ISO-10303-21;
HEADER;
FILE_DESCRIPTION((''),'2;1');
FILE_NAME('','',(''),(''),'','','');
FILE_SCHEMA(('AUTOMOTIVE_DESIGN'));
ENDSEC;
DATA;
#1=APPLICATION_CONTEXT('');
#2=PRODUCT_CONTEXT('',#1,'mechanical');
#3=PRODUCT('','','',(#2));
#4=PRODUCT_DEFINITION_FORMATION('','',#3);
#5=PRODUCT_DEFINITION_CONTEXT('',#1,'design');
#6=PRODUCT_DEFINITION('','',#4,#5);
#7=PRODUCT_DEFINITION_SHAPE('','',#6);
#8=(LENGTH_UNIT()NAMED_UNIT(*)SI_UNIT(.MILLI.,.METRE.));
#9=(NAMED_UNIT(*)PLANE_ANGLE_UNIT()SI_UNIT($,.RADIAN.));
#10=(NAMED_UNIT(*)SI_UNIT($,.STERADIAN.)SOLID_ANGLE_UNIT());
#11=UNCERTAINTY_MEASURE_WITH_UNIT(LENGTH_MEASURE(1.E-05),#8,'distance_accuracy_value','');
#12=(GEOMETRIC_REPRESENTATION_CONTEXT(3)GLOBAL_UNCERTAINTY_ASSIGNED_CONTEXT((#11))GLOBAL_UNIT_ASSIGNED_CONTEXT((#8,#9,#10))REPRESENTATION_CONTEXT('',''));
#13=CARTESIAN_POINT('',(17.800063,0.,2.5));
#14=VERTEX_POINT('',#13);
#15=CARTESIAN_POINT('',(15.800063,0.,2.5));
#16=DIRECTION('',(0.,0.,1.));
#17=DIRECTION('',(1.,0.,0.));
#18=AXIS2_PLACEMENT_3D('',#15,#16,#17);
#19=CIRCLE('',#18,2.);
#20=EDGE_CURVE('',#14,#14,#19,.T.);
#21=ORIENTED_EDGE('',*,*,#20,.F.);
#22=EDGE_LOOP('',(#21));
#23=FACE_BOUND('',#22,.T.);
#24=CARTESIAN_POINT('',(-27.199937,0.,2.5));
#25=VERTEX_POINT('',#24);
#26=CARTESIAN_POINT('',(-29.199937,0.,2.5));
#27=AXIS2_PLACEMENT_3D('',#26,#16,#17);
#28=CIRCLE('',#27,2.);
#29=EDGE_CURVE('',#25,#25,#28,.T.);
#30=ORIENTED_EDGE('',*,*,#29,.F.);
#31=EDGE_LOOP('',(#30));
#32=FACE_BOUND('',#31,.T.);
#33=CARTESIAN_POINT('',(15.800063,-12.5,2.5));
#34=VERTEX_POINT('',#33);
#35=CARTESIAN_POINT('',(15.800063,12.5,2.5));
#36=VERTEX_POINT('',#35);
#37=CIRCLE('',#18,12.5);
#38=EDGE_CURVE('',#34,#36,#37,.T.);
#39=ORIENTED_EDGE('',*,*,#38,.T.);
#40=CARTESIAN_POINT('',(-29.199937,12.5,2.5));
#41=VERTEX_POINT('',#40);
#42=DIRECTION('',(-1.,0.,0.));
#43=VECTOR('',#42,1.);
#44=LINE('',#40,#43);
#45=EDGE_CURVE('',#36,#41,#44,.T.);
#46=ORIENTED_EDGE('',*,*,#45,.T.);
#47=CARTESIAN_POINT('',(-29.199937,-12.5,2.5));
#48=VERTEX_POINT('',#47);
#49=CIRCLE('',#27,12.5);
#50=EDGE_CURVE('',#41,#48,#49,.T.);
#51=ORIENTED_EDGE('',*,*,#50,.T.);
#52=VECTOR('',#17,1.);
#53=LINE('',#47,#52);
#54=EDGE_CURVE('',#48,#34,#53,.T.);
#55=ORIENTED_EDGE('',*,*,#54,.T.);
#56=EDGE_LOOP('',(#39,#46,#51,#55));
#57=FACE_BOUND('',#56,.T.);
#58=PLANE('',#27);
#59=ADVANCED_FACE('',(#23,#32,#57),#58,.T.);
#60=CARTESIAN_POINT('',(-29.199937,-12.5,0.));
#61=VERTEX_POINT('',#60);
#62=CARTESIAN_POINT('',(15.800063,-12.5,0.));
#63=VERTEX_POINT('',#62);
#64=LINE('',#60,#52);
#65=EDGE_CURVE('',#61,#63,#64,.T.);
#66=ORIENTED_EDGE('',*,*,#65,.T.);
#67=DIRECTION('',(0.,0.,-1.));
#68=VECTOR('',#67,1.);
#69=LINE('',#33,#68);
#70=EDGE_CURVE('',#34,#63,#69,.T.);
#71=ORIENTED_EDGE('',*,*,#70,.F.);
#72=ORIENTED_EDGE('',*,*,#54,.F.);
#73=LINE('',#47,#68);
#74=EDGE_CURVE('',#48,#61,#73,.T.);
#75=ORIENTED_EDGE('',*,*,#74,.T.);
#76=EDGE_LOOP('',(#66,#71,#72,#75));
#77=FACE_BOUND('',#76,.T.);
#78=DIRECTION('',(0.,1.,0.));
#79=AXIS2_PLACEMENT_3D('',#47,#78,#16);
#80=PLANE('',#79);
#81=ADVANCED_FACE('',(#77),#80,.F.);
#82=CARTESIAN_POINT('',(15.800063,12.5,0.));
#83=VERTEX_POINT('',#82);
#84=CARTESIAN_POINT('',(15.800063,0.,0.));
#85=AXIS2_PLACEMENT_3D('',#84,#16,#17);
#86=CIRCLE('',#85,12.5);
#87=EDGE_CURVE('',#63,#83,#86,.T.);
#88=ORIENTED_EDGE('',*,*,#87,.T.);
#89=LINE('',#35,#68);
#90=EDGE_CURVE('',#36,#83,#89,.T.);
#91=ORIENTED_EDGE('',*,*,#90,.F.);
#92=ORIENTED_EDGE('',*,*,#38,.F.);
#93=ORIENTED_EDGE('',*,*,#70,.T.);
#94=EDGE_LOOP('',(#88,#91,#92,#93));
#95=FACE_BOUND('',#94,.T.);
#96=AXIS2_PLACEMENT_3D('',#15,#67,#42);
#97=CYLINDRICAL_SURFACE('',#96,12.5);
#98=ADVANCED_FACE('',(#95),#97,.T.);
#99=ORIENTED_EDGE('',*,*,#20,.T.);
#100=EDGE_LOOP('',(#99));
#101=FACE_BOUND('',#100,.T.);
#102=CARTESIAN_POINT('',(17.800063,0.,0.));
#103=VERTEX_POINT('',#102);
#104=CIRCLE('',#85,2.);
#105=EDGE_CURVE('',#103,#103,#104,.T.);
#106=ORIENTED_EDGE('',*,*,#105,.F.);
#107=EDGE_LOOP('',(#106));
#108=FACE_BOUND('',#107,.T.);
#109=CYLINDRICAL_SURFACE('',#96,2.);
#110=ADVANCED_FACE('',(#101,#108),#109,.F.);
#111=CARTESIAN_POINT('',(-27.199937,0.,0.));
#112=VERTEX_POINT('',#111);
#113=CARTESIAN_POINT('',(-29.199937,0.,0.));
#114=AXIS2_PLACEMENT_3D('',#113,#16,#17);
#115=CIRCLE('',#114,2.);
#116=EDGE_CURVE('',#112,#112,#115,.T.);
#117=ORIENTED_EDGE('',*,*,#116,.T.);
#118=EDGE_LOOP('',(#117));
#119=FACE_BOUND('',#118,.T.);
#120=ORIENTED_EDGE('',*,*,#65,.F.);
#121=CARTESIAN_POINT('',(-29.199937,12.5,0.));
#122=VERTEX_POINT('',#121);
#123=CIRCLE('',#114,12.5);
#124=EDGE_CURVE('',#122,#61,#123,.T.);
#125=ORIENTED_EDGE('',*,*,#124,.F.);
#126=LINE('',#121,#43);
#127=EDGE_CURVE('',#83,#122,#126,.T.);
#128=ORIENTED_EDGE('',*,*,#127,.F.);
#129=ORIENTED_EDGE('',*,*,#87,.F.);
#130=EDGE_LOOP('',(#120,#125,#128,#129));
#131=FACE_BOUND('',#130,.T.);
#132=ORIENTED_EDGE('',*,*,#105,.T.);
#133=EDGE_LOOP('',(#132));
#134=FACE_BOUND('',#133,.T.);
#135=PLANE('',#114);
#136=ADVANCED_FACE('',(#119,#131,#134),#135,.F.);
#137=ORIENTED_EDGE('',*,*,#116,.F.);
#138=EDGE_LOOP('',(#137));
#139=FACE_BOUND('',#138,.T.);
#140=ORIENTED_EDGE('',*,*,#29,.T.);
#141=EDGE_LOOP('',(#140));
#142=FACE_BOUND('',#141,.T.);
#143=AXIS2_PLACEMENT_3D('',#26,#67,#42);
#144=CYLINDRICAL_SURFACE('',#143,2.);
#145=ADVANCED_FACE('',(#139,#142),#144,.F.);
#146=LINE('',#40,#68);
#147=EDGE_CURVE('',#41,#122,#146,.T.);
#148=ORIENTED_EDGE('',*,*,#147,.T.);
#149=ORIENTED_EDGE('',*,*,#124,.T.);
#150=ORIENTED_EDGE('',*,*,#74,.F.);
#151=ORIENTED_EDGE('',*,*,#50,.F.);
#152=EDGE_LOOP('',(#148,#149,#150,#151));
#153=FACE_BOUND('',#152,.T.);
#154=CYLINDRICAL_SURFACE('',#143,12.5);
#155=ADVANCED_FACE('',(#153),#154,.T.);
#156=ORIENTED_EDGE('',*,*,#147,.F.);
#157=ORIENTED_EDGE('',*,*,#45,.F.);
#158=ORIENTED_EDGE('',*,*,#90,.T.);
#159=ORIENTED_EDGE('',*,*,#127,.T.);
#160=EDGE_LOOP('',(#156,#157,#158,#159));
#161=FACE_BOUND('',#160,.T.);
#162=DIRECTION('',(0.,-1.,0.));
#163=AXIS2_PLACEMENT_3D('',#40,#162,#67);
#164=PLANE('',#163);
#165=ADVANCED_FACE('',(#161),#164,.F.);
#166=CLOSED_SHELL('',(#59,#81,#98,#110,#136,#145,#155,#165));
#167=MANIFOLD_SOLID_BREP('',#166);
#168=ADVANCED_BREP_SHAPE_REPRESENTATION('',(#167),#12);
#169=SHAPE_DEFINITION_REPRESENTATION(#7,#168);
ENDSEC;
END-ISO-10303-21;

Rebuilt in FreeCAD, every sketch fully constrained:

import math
import FreeCAD as App
import Part
import Sketcher
Q = App.Units.Quantity

doc = App.newDocument("Part")
body = doc.addObject("PartDesign::Body", "Body")

# Sketch on XY plane
sketch1 = doc.addObject("Sketcher::SketchObject", "Sketch")
body.addObject(sketch1)
sketch1.AttachmentSupport = (doc.XY_Plane, [""])
sketch1.MapMode = "FlatFace"
sketch1.addGeometry([
    Part.LineSegment(App.Vector(15.8, 12.5, 0), App.Vector(-29.2, 12.5, 0)),  # 0
    Part.ArcOfCircle(Part.Circle(App.Vector(-29.2, 0, 0), App.Vector(0, 0, 1), 12.5), math.radians(90), math.radians(270)),  # 1
    Part.LineSegment(App.Vector(-29.2, -12.5, 0), App.Vector(15.8, -12.5, 0)),  # 2
    Part.ArcOfCircle(Part.Circle(App.Vector(15.8, 0, 0), App.Vector(0, 0, 1), 12.5), math.radians(-90), math.radians(90)),  # 3
    Part.Circle(App.Vector(15.8, 0, 0), App.Vector(0, 0, 1), 2),  # 4
    Part.Circle(App.Vector(-29.2, 0, 0), App.Vector(0, 0, 1), 2),  # 5
], False)
sketch1.addConstraint([
    Sketcher.Constraint("Tangent", 0, 2, 1, 1),
    Sketcher.Constraint("Tangent", 1, 2, 2, 1),
    Sketcher.Constraint("Tangent", 2, 2, 3, 1),
    Sketcher.Constraint("Tangent", 3, 2, 0, 1),
    Sketcher.Constraint("Horizontal", 0),
    Sketcher.Constraint("Horizontal", 2),
    Sketcher.Constraint("Coincident", 4, 3, 3, 3),
    Sketcher.Constraint("Coincident", 5, 3, 1, 3),
    Sketcher.Constraint("Equal", 4, 5),
    Sketcher.Constraint("PointOnObject", 1, 3, -1),
    Sketcher.Constraint("Diameter", 4, Q("4 mm")),
    Sketcher.Constraint("Radius", 1, Q("12.5 mm")),
    Sketcher.Constraint("DistanceX", 0, 2, 0, 1, Q("45 mm")),
    Sketcher.Constraint("DistanceX", 1, 3, -1, 1, Q("29.199937 mm")),
])
pad1 = doc.addObject("PartDesign::Pad", "Pad")
body.addObject(pad1)
pad1.Profile = sketch1
pad1.Length = 2.5

doc.recompute()
